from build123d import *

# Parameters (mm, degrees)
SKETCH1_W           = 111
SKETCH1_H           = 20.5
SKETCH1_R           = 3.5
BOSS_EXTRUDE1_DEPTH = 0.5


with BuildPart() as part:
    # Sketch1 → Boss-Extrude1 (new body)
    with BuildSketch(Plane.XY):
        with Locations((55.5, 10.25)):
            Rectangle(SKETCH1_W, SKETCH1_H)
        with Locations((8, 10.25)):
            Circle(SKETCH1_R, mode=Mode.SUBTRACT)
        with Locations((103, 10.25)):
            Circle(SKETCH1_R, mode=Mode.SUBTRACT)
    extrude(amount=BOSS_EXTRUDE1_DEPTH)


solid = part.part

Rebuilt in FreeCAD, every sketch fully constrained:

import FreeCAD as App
import Part
import Sketcher

V = App.Vector
Q = App.Units.Quantity

doc = App.newDocument("Part")
params = doc.addObject("Spreadsheet::Sheet", "Params")
for row, (alias, value) in enumerate([
    ("sketch1_diameter", "7 mm"),
    ("sketch1_width", "111 mm"),
    ("sketch1_height", "20.5 mm"),
    ("pad1_length", "0.5 mm"),
], start=1):
    params.set(f"A{row}", alias)
    params.set(f"B{row}", "=" + value)
    params.setAlias(f"B{row}", alias)

body = doc.addObject("PartDesign::Body", "Body")

sketch1 = doc.addObject("Sketcher::SketchObject", "Sketch")
body.addObject(sketch1)
sketch1.AttachmentSupport = (doc.XY_Plane, [""])
sketch1.MapMode = "FlatFace"
sketch1.addGeometry([
    Part.LineSegment(V(0, 20.5, 0), V(0, 0, 0)),
    Part.LineSegment(V(0, 0, 0), V(111, 0, 0)),
    Part.LineSegment(V(111, 0, 0), V(111, 20.5, 0)),
    Part.LineSegment(V(111, 20.5, 0), V(0, 20.5, 0)),
    Part.Circle(V(8, 10.25, 0), V(0, 0, 1), 3.5),
    Part.Circle(V(103, 10.25, 0), V(0, 0, 1), 3.5),
], False)
sketch1.addConstraint([
    Sketcher.Constraint("Coincident", 0, 2, 1, 1),
    Sketcher.Constraint("Coincident", 1, 2, 2, 1),
    Sketcher.Constraint("Coincident", 2, 2, 3, 1),
    Sketcher.Constraint("Coincident", 3, 2, 0, 1),
    Sketcher.Constraint("Vertical", 0),
    Sketcher.Constraint("Horizontal", 1),
    Sketcher.Constraint("Vertical", 2),
    Sketcher.Constraint("Horizontal", 3),
    Sketcher.Constraint("Coincident", 0, 2, -1, 1),
    Sketcher.Constraint("Equal", 4, 5),
    Sketcher.Constraint("Horizontal", 4, 3, 5, 3),
    Sketcher.Constraint("Diameter", 4, Q("7 mm")),
    Sketcher.Constraint("DistanceX", 1, 1, 1, 2, Q("111 mm")),
    Sketcher.Constraint("DistanceY", 0, 2, 0, 1, Q("20.5 mm")),
    Sketcher.Constraint("DistanceX", -1, 1, 4, 3, Q("8 mm")),
    Sketcher.Constraint("DistanceX", -1, 1, 5, 3, Q("103 mm")),
    Sketcher.Constraint("DistanceY", -1, 1, 4, 3, Q("10.25 mm")),
])
sketch1.setExpression("Constraints[11]", "Params.sketch1_diameter")
sketch1.setExpression("Constraints[12]", "Params.sketch1_width")
sketch1.setExpression("Constraints[13]", "Params.sketch1_height")
pad1 = doc.addObject("PartDesign::Pad", "Pad")
body.addObject(pad1)
pad1.Profile = sketch1
pad1.setExpression("Length", "Params.pad1_length")

doc.recompute()
